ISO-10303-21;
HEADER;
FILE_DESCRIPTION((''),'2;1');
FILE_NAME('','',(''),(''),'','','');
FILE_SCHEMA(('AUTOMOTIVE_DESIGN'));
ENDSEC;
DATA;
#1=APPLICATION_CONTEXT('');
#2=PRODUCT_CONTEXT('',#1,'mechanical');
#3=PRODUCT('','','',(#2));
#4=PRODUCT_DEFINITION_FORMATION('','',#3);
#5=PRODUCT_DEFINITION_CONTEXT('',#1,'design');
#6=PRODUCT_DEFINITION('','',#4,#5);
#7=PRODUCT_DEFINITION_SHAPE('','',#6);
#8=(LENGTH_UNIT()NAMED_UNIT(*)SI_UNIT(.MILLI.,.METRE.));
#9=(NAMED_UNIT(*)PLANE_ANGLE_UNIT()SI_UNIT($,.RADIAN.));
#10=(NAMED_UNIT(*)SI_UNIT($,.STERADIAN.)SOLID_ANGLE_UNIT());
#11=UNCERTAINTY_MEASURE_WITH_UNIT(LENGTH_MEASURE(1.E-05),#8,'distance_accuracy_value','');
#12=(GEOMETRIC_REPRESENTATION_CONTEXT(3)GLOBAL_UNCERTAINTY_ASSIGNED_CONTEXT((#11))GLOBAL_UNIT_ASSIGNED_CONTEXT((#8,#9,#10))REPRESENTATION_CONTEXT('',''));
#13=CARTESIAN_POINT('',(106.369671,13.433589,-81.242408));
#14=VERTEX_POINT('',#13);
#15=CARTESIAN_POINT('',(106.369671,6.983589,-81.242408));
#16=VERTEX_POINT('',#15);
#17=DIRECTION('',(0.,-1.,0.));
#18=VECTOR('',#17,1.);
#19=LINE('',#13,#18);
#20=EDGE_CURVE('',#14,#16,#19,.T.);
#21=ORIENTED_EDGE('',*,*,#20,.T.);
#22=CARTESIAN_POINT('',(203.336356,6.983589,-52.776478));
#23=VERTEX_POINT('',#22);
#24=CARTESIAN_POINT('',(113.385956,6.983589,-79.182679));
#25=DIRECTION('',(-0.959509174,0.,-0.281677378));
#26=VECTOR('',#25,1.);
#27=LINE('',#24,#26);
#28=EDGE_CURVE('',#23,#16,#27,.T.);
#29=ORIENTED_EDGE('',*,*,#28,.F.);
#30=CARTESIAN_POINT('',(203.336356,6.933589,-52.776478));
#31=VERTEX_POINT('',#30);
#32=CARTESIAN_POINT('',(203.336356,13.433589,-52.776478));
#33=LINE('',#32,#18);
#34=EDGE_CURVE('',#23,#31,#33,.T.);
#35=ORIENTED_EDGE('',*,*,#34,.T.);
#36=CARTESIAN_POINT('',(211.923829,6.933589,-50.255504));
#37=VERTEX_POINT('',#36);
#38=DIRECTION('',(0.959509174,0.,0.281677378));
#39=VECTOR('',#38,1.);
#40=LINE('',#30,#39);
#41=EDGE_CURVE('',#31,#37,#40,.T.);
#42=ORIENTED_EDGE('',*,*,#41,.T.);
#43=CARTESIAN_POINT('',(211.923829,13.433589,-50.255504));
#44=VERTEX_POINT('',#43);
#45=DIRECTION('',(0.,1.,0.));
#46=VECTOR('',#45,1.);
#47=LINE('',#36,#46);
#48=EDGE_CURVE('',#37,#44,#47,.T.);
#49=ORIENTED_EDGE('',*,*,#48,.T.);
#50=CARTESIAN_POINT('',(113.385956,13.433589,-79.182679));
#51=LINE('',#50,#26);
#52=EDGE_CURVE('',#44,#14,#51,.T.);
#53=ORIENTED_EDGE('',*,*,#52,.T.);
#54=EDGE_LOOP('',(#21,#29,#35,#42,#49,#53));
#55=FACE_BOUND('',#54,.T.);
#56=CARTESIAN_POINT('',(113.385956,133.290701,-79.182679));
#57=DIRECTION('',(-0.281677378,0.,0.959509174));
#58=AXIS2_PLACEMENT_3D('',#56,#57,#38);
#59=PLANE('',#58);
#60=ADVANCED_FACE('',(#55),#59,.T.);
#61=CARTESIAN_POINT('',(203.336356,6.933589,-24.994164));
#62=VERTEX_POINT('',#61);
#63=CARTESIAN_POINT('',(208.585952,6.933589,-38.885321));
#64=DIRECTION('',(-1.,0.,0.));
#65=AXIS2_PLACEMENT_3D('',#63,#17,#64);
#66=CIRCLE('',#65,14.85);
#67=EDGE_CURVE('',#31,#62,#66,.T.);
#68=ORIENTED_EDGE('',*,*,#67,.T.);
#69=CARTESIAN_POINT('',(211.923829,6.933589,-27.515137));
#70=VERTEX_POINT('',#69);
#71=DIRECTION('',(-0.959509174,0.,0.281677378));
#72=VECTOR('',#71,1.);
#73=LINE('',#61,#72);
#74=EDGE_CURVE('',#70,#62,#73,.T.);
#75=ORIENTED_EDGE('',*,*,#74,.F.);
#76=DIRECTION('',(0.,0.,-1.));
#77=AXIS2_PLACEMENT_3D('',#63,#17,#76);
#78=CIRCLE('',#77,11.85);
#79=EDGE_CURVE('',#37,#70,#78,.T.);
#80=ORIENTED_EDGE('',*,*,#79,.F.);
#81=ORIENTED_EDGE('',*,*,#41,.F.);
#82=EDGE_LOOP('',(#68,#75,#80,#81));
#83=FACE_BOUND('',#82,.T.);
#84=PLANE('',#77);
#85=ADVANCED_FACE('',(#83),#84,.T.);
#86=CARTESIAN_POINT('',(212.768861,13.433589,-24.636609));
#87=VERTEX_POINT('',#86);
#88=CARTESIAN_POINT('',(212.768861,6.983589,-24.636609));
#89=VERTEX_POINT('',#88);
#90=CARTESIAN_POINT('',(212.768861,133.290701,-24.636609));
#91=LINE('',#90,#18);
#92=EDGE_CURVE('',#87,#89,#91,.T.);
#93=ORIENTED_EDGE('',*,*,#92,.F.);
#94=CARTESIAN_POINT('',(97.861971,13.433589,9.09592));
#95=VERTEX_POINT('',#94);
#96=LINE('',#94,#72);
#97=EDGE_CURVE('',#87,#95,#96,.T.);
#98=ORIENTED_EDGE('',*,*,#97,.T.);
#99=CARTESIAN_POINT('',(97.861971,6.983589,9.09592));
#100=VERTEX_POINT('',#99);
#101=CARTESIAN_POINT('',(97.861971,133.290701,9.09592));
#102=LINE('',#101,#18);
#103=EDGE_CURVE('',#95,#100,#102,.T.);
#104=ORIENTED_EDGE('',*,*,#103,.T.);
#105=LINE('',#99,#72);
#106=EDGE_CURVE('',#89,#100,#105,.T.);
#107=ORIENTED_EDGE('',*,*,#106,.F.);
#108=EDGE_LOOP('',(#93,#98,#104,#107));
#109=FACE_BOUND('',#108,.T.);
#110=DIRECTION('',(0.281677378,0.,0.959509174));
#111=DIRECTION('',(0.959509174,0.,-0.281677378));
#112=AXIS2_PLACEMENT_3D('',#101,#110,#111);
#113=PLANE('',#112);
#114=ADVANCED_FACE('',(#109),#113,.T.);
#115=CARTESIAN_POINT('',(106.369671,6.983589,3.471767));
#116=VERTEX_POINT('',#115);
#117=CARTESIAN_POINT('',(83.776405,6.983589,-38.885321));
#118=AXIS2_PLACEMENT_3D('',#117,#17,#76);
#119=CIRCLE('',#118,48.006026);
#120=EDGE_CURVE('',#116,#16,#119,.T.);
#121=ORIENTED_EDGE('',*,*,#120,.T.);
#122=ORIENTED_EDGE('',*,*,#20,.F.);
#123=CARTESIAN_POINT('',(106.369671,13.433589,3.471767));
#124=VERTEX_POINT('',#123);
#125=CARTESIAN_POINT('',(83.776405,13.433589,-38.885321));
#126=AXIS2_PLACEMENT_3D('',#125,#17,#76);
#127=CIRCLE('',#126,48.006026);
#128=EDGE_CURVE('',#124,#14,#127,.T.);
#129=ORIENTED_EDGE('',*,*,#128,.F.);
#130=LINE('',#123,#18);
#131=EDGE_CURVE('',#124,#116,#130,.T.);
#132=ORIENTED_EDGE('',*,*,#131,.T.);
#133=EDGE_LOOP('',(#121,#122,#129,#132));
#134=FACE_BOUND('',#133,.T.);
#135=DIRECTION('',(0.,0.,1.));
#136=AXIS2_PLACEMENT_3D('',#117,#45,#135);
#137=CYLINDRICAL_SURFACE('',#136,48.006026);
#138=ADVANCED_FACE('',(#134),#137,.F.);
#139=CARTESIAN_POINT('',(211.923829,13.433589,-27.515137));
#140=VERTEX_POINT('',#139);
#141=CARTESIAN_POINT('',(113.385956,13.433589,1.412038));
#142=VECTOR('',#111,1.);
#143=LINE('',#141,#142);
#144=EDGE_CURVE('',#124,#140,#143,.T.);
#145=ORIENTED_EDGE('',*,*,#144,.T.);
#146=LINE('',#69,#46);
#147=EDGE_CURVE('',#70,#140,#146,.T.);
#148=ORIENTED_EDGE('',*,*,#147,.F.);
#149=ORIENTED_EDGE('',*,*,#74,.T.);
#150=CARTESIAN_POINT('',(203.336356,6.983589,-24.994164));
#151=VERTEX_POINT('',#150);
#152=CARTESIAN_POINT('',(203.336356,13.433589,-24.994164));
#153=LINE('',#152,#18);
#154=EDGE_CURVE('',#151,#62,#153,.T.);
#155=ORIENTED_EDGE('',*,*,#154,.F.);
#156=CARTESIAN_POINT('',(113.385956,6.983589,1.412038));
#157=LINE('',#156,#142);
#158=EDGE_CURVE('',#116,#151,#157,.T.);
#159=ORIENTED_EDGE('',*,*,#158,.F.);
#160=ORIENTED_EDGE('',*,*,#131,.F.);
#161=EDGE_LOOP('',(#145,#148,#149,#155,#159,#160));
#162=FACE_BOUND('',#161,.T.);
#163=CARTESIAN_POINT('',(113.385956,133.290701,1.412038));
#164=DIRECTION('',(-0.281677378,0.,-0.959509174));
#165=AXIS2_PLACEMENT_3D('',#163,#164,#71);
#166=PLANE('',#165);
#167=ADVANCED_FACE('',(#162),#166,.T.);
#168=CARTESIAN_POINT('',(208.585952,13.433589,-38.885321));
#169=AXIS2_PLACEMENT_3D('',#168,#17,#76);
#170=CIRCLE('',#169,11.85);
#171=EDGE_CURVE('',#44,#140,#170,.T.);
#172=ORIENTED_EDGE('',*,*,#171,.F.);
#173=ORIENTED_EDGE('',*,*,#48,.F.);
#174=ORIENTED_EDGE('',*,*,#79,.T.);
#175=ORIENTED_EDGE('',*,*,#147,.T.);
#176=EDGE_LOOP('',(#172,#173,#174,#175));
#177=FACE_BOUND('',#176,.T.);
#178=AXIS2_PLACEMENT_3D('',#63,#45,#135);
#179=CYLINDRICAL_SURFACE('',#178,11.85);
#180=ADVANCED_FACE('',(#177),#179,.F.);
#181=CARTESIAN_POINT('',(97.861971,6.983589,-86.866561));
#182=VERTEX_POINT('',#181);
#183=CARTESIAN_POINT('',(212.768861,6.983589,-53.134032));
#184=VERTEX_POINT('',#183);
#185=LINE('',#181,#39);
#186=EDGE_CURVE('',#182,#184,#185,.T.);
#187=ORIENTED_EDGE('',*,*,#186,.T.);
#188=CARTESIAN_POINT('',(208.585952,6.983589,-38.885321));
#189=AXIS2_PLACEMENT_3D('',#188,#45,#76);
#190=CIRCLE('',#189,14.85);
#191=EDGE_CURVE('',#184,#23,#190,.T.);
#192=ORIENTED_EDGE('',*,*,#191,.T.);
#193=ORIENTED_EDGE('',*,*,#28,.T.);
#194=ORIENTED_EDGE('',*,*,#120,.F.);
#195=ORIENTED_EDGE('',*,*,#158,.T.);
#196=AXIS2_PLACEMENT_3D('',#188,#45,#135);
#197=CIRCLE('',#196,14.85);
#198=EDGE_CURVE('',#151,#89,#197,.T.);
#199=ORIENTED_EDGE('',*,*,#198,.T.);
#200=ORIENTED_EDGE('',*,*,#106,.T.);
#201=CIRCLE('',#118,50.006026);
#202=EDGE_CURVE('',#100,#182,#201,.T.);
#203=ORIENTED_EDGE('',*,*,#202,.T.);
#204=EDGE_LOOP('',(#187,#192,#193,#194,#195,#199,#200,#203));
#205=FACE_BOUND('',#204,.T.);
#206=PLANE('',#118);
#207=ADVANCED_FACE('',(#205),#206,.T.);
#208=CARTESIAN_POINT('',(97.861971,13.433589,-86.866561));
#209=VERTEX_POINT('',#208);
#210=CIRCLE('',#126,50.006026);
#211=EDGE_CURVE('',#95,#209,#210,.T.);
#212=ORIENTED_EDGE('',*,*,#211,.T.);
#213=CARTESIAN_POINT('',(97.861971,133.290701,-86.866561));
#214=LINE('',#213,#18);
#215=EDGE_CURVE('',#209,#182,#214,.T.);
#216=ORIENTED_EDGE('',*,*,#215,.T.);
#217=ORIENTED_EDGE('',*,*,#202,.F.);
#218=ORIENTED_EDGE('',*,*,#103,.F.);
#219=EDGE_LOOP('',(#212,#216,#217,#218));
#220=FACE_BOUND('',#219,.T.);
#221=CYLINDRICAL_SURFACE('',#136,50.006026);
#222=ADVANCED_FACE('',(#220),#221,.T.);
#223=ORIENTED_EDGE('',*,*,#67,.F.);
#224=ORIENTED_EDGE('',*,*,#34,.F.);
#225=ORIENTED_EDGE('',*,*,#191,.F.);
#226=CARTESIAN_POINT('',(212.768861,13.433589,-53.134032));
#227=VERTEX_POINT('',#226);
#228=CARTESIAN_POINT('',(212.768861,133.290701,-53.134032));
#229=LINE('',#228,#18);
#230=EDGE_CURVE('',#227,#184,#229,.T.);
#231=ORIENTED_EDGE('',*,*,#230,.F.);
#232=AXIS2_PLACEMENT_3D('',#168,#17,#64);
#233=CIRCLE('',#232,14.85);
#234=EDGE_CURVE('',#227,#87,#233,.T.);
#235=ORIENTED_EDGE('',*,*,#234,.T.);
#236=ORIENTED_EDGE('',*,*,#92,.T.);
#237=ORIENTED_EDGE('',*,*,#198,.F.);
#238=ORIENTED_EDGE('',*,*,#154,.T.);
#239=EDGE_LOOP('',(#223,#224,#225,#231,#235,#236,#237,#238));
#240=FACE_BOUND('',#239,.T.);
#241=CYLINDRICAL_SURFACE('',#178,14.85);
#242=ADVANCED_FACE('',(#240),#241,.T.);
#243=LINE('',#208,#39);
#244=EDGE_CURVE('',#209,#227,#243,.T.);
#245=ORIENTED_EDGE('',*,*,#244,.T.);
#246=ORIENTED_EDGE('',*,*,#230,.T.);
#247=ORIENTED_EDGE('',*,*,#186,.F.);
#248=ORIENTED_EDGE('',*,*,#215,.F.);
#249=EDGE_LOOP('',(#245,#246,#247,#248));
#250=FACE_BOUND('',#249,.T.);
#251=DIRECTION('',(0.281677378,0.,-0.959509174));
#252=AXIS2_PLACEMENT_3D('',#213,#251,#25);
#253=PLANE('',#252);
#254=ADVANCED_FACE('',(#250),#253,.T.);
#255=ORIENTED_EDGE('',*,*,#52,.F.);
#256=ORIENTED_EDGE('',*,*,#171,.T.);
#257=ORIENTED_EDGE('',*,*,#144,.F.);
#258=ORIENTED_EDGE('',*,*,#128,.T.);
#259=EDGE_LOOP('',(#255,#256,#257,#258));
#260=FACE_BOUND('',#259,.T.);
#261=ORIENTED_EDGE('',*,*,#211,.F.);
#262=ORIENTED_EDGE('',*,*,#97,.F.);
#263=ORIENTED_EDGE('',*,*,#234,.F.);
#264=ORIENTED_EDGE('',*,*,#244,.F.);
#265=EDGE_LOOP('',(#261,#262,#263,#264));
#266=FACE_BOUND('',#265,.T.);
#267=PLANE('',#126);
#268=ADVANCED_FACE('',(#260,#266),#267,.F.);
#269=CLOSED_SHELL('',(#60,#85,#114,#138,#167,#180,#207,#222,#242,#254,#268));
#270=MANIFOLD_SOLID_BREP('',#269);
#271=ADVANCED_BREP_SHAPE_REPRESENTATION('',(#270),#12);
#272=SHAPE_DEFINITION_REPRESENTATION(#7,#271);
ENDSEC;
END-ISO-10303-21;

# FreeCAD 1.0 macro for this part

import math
import FreeCAD as App
import Part
import Sketcher

V = App.Vector

doc = App.newDocument("Part")
params = doc.addObject("Spreadsheet::Sheet", "Params")
for row, (alias, value) in enumerate([
    ("pad1_length", "6.45 mm"),
    ("sketch2_diameter", "29.7 mm"),
    ("sketch2_diameter2", "23.7 mm"),
    ("pad2_length", "6.5 mm"),
    ("sketch3_radius", "14.85 mm"),
    ("pad3_length", "6.45 mm"),
    ("sketch5_radius", "14.85 mm"),
    ("sketch6_radius", "11.85 mm"),
], start=1):
    params.set(f"A{row}", alias)
    params.set(f"B{row}", "=" + value)
    params.setAlias(f"B{row}", alias)

body = doc.addObject("PartDesign::Body", "Body")

sketch1 = doc.addObject("Sketcher::SketchObject", "Sketch")
body.addObject(sketch1)
sketch1.AttachmentSupport = (doc.XZ_Plane, [""])
sketch1.MapMode = "FlatFace"
sketch1.AttachmentOffset = App.Placement(V(0, 0, -13.433589), App.Rotation())
sketch1.addGeometry([
    Part.Circle(V(84, -39, 0), V(0, 0, 1), 50),
    Part.Circle(V(84, -39, 0), V(0, 0, 1), 48),
], False)
sketch1.addConstraint([
    Sketcher.Constraint("Coincident", 1, 3, 0, 3),
    Sketcher.Constraint("Diameter", 0, 100.012052),
    Sketcher.Constraint("Diameter", 1, 96.012052),
    Sketcher.Constraint("DistanceY", 0, 3, -1, 1, 38.885321),
    Sketcher.Constraint("DistanceX", -1, 1, 0, 3, 83.776405),
])
pad1 = doc.addObject("PartDesign::Pad", "Pad")
body.addObject(pad1)
pad1.Profile = sketch1
pad1.setExpression("Length", "Params.pad1_length")
body2 = doc.addObject("PartDesign::Body", "Body001")

sketch2 = doc.addObject("Sketcher::SketchObject", "Sketch001")
body2.addObject(sketch2)
sketch2.AttachmentSupport = (doc.getObject("XZ_Plane001"), [""])
sketch2.MapMode = "FlatFace"
sketch2.AttachmentOffset = App.Placement(V(0, 0, -13.433589), App.Rotation())
sketch2.addGeometry([
    Part.Circle(V(209, -39, 0), V(0, 0, 1), 15),
    Part.Circle(V(209, -39, 0), V(0, 0, 1), 12),
], False)
sketch2.addConstraint([
    Sketcher.Constraint("Coincident", 1, 3, 0, 3),
    Sketcher.Constraint("Diameter", 0, 29.7),
    Sketcher.Constraint("Diameter", 1, 23.7),
    Sketcher.Constraint("DistanceX", -1, 1, 0, 3, 208.585952),
    Sketcher.Constraint("DistanceY", 0, 3, -1, 1, 38.885321),
])
sketch2.setExpression("Constraints[1]", "Params.sketch2_diameter")
sketch2.setExpression("Constraints[2]", "Params.sketch2_diameter2")
pad2 = doc.addObject("PartDesign::Pad", "Pad001")
body2.addObject(pad2)
pad2.Profile = sketch2
pad2.setExpression("Length", "Params.pad2_length")
body.AllowCompound = True
doc.recompute()

boolean = doc.addObject("PartDesign::Boolean", "Boolean")
body.addObject(boolean)
boolean.Type = "Fuse"
boolean.addObjects([body2])

sketch3 = doc.addObject("Sketcher::SketchObject", "Sketch002")
body.addObject(sketch3)
sketch3.AttachmentSupport = (doc.XZ_Plane, [""])
sketch3.MapMode = "FlatFace"
sketch3.AttachmentOffset = App.Placement(V(0, 0, -6.983589), App.Rotation())
sketch3.addGeometry([
    Part.LineSegment(V(98, -87, 0), V(213, -53, 0)),
    Part.ArcOfCircle(Part.Circle(V(209, -39, 0), V(0, 0, 1), 15), math.radians(-111), math.radians(-74)),
    Part.LineSegment(V(203, -53, 0), V(113, -79, 0)),
    Part.ArcOfCircle(Part.Circle(V(84, -39, 0), V(0, 0, 1), 50), math.radians(-73.64), math.radians(-53.69)),
    Part.LineSegment(V(113, 1, 0), V(203, -25, 0)),
    Part.ArcOfCircle(Part.Circle(V(209, -39, 0), V(0, 0, 1), 15), math.radians(74), math.radians(111)),
    Part.LineSegment(V(213, -25, 0), V(98, 9, 0)),
    Part.ArcOfCircle(Part.Circle(V(84, -39, 0), V(0, 0, 1), 50), math.radians(53.69), math.radians(73.64)),
], False)
sketch3.addConstraint([
    Sketcher.Constraint("Tangent", 0, 2, 1, 2),
    Sketcher.Constraint("Coincident", 1, 1, 2, 1),
    Sketcher.Constraint("Coincident", 2, 2, 3, 2),
    Sketcher.Constraint("Tangent", 3, 1, 0, 1),
    Sketcher.Constraint("Coincident", 4, 2, 5, 2),
    Sketcher.Constraint("Tangent", 5, 1, 6, 1),
    Sketcher.Constraint("Tangent", 6, 2, 7, 2),
    Sketcher.Constraint("Coincident", 7, 1, 4, 1),
    Sketcher.Constraint("Coincident", 5, 3, 1, 3),
    Sketcher.Constraint("Coincident", 7, 3, 3, 3),
    Sketcher.Constraint("Equal", 1, 5),
    Sketcher.Constraint("Equal", 3, 7),
    Sketcher.Constraint("Parallel", 0, 2),
    Sketcher.Constraint("Parallel", 4, 6),
    Sketcher.Constraint("Horizontal", 1, 3, 3, 3),
    Sketcher.Constraint("Vertical", 1, 1, 4, 2),
    Sketcher.Constraint("Radius", 1, 14.85),
    Sketcher.Constraint("Radius", 3, 50.006026),
    Sketcher.Constraint("DistanceX", 2, 2, 1, 1, 89.9504),
    Sketcher.Constraint("DistanceY", 2, 2, 1, 1, 26.406202),
    Sketcher.Constraint("DistanceX", -1, 1, 1, 3, 208.585952),
    Sketcher.Constraint("DistanceY", 1, 3, -1, 1, 38.885321),
])
sketch3.setExpression("Constraints[16]", "Params.sketch3_radius")
pad3 = doc.addObject("PartDesign::Pad", "Pad002")
body.addObject(pad3)
pad3.Profile = sketch3
pad3.setExpression("Length", "Params.pad3_length")
pad3.Reversed = True

sketch4 = doc.addObject("Sketcher::SketchObject", "Sketch003")
body.addObject(sketch4)
sketch4.AttachmentSupport = (doc.XZ_Plane, [""])
sketch4.MapMode = "FlatFace"
sketch4.AttachmentOffset = App.Placement(V(0, 0, -6.983589), App.Rotation())
sketch4.addGeometry([
    Part.LineSegment(V(106, -81, 0), V(113, -79, 0)),
    Part.ArcOfCircle(Part.Circle(V(84, -39, 0), V(0, 0, 1), 50), math.radians(-54), math.radians(54)),
    Part.LineSegment(V(113, 1, 0), V(106, 3, 0)),
    Part.ArcOfCircle(Part.Circle(V(84, -39, 0), V(0, 0, 1), 48), math.radians(-62), math.radians(62)),
], False)
sketch4.addConstraint([
    Sketcher.Constraint("Coincident", 0, 2, 1, 1),
    Sketcher.Constraint("Coincident", 1, 2, 2, 1),
    Sketcher.Constraint("Coincident", 2, 2, 3, 2),
    Sketcher.Constraint("Coincident", 3, 1, 0, 1),
    Sketcher.Constraint("Coincident", 3, 3, 1, 3),
    Sketcher.Constraint("Vertical", 0, 2, 1, 2),
    Sketcher.Constraint("Vertical", 2, 2, 3, 1),
    Sketcher.Constraint("Radius", 1, 50.006026),
    Sketcher.Constraint("Radius", 3, 48.006026),
    Sketcher.Constraint("Distance", 0, 7.312369),
    Sketcher.Constraint("DistanceY", 1, 3, -1, 1, 38.885321),
    Sketcher.Constraint("DistanceY", 0, 2, -1, 1, 79.182679),
    Sketcher.Constraint("DistanceX", -1, 1, 2, 2, 106.369671),
])
pocket1 = doc.addObject("PartDesign::Pocket", "Pocket")
body.addObject(pocket1)
pocket1.Profile = sketch4
pocket1.Type = "ThroughAll"

sketch5 = doc.addObject("Sketcher::SketchObject", "Sketch004")
body.addObject(sketch5)
sketch5.AttachmentSupport = (doc.XZ_Plane, [""])
sketch5.MapMode = "FlatFace"
sketch5.AttachmentOffset = App.Placement(V(0, 0, -6.933589), App.Rotation())
sketch5.addGeometry([
    Part.LineSegment(V(204.8, -25.4, 0), V(203.3, -25, 0)),
    Part.ArcOfCircle(Part.Circle(V(208.6, -38.9, 0), V(0, 0, 1), 14.8), math.radians(111), math.radians(249)),
    Part.LineSegment(V(203.3, -52.8, 0), V(204.8, -52.4, 0)),
    Part.LineSegment(V(204.8, -52.4, 0), V(204.8, -25.4, 0)),
], False)
sketch5.addConstraint([
    Sketcher.Constraint("Coincident", 0, 2, 1, 1),
    Sketcher.Constraint("Coincident", 1, 2, 2, 1),
    Sketcher.Constraint("Coincident", 2, 2, 3, 1),
    Sketcher.Constraint("Coincident", 3, 2, 0, 1),
    Sketcher.Constraint("Vertical", 3),
    Sketcher.Constraint("Vertical", 0, 2, 1, 2),
    Sketcher.Constraint("Equal", 0, 2),
    Sketcher.Constraint("Radius", 1, 14.85),
    Sketcher.Constraint("DistanceX", 1, 2, 2, 2, 1.434302),
    Sketcher.Constraint("Distance", 0, 1.494828),
    Sketcher.Constraint("DistanceY", 3, 1, 3, 2, 26.940195),
    Sketcher.Constraint("DistanceX", -1, 1, 1, 3, 208.585952),
    Sketcher.Constraint("DistanceY", 1, 3, -1, 1, 38.885321),
])
sketch5.setExpression("Constraints[7]", "Params.sketch5_radius")
pocket2 = doc.addObject("PartDesign::Pocket", "Pocket001")
body.addObject(pocket2)
pocket2.Profile = sketch5
pocket2.Type = "ThroughAll"

sketch6 = doc.addObject("Sketcher::SketchObject", "Sketch005")
body.addObject(sketch6)
sketch6.AttachmentSupport = (doc.XZ_Plane, [""])
sketch6.MapMode = "FlatFace"
sketch6.AttachmentOffset = App.Placement(V(0, 0, -13.433589), App.Rotation())
sketch6.addGeometry([
    Part.LineSegment(V(204.8, -25.4, 0), V(211.9, -27.5, 0)),
    Part.ArcOfCircle(Part.Circle(V(208.6, -38.9, 0), V(0, 0, 1), 11.8), math.radians(74), math.radians(109)),
    Part.LineSegment(V(204.8, -27.7, 0), V(204.8, -25.4, 0)),
    Part.LineSegment(V(204.8, -52.4, 0), V(204.8, -50.1, 0)),
    Part.ArcOfCircle(Part.Circle(V(208.6, -38.9, 0), V(0, 0, 1), 11.8), math.radians(-109), math.radians(-74)),
    Part.LineSegment(V(211.9, -50.3, 0), V(204.8, -52.4, 0)),
], False)
sketch6.addConstraint([
    Sketcher.Constraint("Tangent", 0, 2, 1, 1),
    Sketcher.Constraint("Coincident", 1, 2, 2, 1),
    Sketcher.Constraint("Coincident", 2, 2, 0, 1),
    Sketcher.Constraint("Coincident", 3, 2, 4, 1),
    Sketcher.Constraint("Tangent", 4, 2, 5, 1),
    Sketcher.Constraint("Coincident", 5, 2, 3, 1),
    Sketcher.Constraint("Vertical", 2),
    Sketcher.Constraint("Vertical", 3),
    Sketcher.Constraint("Coincident", 4, 3, 1, 3),
    Sketcher.Constraint("Equal", 1, 4),
    Sketcher.Constraint("Vertical", 2, 2, 3, 2),
    Sketcher.Constraint("Vertical", 0, 2, 4, 2),
    Sketcher.Constraint("Radius", 1, 11.85),
    Sketcher.Constraint("DistanceY", 3, 2, 2, 2, 24.689101),
    Sketcher.Constraint("Distance", 0, 7.455032),
    Sketcher.Constraint("DistanceX", -1, 1, 1, 3, 208.585952),
    Sketcher.Constraint("DistanceY", 1, 3, -1, 1, 38.885321),
])
sketch6.setExpression("Constraints[12]", "Params.sketch6_radius")
pocket3 = doc.addObject("PartDesign::Pocket", "Pocket002")
body.addObject(pocket3)
pocket3.Profile = sketch6
pocket3.Type = "ThroughAll"
pocket3.Midplane = True

doc.recompute()
